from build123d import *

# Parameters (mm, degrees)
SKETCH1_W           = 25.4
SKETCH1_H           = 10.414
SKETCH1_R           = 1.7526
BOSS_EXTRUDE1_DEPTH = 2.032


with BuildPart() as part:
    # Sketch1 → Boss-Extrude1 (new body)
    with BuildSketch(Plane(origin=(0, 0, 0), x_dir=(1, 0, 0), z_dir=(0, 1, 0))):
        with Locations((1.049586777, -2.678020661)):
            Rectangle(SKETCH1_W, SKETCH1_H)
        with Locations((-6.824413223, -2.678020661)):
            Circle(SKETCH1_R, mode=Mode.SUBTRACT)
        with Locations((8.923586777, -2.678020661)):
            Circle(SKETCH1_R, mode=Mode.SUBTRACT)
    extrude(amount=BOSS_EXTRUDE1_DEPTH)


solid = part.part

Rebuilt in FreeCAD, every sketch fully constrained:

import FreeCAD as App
import Part
import Sketcher

V = App.Vector
Q = App.Units.Quantity


def add_polygon(sketch, points):
    """Adds a closed chain of lines whose ends are joined by coincident constraints."""
    first, n = sketch.GeometryCount, len(points)
    for a, b in zip(points, points[1:] + points[:1]):
        sketch.addGeometry(Part.LineSegment(App.Vector(*a, 0), App.Vector(*b, 0)), False)
    for i in range(n):
        sketch.addConstraint(Sketcher.Constraint("Coincident", first + i, 2, first + (i + 1) % n, 1))

doc = App.newDocument("Part")
body = doc.addObject("PartDesign::Body", "Body")

sketch1 = doc.addObject("Sketcher::SketchObject", "Sketch")
body.addObject(sketch1)
sketch1.AttachmentSupport = (doc.XZ_Plane, [""])
sketch1.MapMode = "FlatFace"
add_polygon(sketch1, [(-11.7, -2.5), (-11.7, 7.9), (13.7, 7.9), (13.7, -2.5)])
sketch1.addGeometry(Part.Circle(V(-6.8, 2.7, 0), V(0, 0, 1), 1.8), False)
sketch1.addGeometry(Part.Circle(V(8.9, 2.7, 0), V(0, 0, 1), 1.8), False)
sketch1.addConstraint([
    Sketcher.Constraint("Vertical", 0),
    Sketcher.Constraint("Horizontal", 1),
    Sketcher.Constraint("Vertical", 2),
    Sketcher.Constraint("Horizontal", 3),
    Sketcher.Constraint("Equal", 4, 5),
    Sketcher.Constraint("Horizontal", 4, 3, 5, 3),
    Sketcher.Constraint("DistanceX", 1, 1, 1, 2, Q("1 in")),
    Sketcher.Constraint("Diameter", 4, Q("0.138 in")),
    Sketcher.Constraint("DistanceY", 0, 1, 0, 2, Q("0.41 in")),
    Sketcher.Constraint("DistanceX", 4, 3, 5, 3, Q("0.62 in")),
    Sketcher.Constraint("DistanceX", 0, 2, 4, 3, Q("0.19 in")),
    Sketcher.Constraint("DistanceY", 4, 3, 0, 2, Q("0.205 in")),
    Sketcher.Constraint("DistanceY", -1, 1, 4, 3, 2.678021),
    Sketcher.Constraint("DistanceX", 4, 3, -1, 1, 6.824413),
])
pad1 = doc.addObject("PartDesign::Pad", "Pad")
body.addObject(pad1)
pad1.Profile = sketch1
pad1.Length = Q("0.08 in")
pad1.Reversed = True

doc.recompute()
